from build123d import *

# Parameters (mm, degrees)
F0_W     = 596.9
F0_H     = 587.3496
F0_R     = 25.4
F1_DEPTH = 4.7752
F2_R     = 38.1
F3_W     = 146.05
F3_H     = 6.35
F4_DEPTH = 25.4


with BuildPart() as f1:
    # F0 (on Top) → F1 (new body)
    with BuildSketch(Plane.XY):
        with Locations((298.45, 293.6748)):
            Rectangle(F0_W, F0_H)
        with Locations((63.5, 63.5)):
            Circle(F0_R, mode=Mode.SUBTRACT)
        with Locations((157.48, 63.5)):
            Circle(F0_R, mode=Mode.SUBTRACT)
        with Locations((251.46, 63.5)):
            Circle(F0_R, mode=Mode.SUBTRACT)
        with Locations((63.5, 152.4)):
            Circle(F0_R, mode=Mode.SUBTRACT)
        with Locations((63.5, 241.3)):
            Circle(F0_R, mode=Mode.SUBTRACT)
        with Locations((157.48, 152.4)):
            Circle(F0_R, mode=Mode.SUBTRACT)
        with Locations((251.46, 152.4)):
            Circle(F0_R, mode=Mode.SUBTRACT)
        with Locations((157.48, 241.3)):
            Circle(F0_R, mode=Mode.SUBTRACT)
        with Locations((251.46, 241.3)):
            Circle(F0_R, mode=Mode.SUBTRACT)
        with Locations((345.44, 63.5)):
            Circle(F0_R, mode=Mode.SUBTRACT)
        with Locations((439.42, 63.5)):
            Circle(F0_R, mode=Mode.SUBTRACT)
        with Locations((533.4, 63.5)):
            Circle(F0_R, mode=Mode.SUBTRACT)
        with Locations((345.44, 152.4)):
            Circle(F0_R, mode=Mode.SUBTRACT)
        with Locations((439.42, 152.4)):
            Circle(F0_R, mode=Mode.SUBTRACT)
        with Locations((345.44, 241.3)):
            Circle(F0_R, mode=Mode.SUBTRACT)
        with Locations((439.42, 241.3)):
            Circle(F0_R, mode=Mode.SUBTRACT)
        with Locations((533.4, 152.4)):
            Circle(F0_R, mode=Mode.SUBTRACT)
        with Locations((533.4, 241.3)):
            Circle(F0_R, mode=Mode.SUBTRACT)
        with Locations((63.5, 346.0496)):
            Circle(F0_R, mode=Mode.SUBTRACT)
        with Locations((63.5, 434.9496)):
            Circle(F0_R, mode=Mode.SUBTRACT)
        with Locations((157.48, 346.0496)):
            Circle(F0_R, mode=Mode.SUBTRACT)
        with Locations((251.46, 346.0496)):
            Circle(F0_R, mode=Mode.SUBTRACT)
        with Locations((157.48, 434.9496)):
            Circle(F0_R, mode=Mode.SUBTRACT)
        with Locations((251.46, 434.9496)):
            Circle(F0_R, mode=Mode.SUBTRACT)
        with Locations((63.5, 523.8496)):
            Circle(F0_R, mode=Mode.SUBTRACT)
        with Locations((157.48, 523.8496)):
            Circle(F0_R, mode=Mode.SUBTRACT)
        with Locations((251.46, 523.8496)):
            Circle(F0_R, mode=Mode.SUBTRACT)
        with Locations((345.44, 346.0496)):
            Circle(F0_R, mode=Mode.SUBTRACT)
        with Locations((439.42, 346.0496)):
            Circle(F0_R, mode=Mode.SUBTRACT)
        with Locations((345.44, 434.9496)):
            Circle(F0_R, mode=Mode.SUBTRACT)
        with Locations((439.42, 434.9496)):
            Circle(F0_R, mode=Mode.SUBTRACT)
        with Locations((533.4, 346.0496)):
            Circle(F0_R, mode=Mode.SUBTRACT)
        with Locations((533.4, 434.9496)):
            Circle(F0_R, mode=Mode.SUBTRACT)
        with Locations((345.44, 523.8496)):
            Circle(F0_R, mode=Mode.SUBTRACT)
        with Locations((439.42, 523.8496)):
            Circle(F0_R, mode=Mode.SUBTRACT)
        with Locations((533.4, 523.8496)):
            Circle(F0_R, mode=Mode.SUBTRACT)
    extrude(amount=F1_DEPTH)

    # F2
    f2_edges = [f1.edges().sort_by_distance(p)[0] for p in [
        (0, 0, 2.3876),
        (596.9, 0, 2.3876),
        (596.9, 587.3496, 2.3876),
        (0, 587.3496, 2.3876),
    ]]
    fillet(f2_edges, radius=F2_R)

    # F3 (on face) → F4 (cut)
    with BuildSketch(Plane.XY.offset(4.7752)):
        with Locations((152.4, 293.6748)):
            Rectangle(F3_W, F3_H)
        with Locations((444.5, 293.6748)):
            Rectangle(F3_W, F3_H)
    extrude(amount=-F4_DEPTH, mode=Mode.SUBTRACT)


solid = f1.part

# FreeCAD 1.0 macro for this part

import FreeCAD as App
import Part
import Sketcher

V = App.Vector
Q = App.Units.Quantity


def edges_at(feature, points):
    """Names of the edges that pass closest to the given points."""
    edges = feature.Shape.Edges
    near = lambda p: min(range(len(edges)), key=lambda i: edges[i].distToShape(Part.Vertex(*p))[0])
    return sorted({f"Edge{near(p) + 1}" for p in points})

doc = App.newDocument("Part")
body = doc.addObject("PartDesign::Body", "Body")

# Sketch on XY plane
sketch1 = doc.addObject("Sketcher::SketchObject", "Sketch")
body.addObject(sketch1)
sketch1.AttachmentSupport = (doc.XY_Plane, [""])
sketch1.MapMode = "FlatFace"
sketch1.addGeometry(Part.LineSegment(V(0, 587, 0), V(0, 0, 0)), False)
sketch1.addGeometry(Part.LineSegment(V(0, 0, 0), V(597, 0, 0)), False)
sketch1.addGeometry(Part.LineSegment(V(597, 0, 0), V(597, 587, 0)), False)
sketch1.addGeometry(Part.LineSegment(V(597, 587, 0), V(0, 587, 0)), False)
sketch1.addGeometry(Part.Circle(V(64, 64, 0), V(0, 0, 1), 25), False)
sketch1.addGeometry(Part.Circle(V(157, 64, 0), V(0, 0, 1), 25), False)
sketch1.addGeometry(Part.Circle(V(64, 152, 0), V(0, 0, 1), 25), False)
sketch1.addGeometry(Part.Circle(V(157, 152, 0), V(0, 0, 1), 25), False)
sketch1.addGeometry(Part.Circle(V(251, 64, 0), V(0, 0, 1), 25), False)
sketch1.addGeometry(Part.Circle(V(251, 152, 0), V(0, 0, 1), 25), False)
sketch1.addGeometry(Part.Circle(V(64, 241, 0), V(0, 0, 1), 25), False)
sketch1.addGeometry(Part.Circle(V(157, 241, 0), V(0, 0, 1), 25), False)
sketch1.addGeometry(Part.Circle(V(251, 241, 0), V(0, 0, 1), 25), False)
sketch1.addGeometry(Part.Circle(V(345, 64, 0), V(0, 0, 1), 25), False)
sketch1.addGeometry(Part.Circle(V(345, 152, 0), V(0, 0, 1), 25), False)
sketch1.addGeometry(Part.Circle(V(439, 64, 0), V(0, 0, 1), 25), False)
sketch1.addGeometry(Part.Circle(V(533, 64, 0), V(0, 0, 1), 25), False)
sketch1.addGeometry(Part.Circle(V(439, 152, 0), V(0, 0, 1), 25), False)
sketch1.addGeometry(Part.Circle(V(533, 152, 0), V(0, 0, 1), 25), False)
sketch1.addGeometry(Part.Circle(V(345, 241, 0), V(0, 0, 1), 25), False)
sketch1.addGeometry(Part.Circle(V(439, 241, 0), V(0, 0, 1), 25), False)
sketch1.addGeometry(Part.Circle(V(533, 241, 0), V(0, 0, 1), 25), False)
sketch1.addGeometry(Part.Circle(V(64, 346, 0), V(0, 0, 1), 25), False)
sketch1.addGeometry(Part.Circle(V(157, 346, 0), V(0, 0, 1), 25), False)
sketch1.addGeometry(Part.Circle(V(251, 346, 0), V(0, 0, 1), 25), False)
sketch1.addGeometry(Part.Circle(V(64, 435, 0), V(0, 0, 1), 25), False)
sketch1.addGeometry(Part.Circle(V(157, 435, 0), V(0, 0, 1), 25), False)
sketch1.addGeometry(Part.Circle(V(64, 524, 0), V(0, 0, 1), 25), False)
sketch1.addGeometry(Part.Circle(V(157, 524, 0), V(0, 0, 1), 25), False)
sketch1.addGeometry(Part.Circle(V(251, 435, 0), V(0, 0, 1), 25), False)
sketch1.addGeometry(Part.Circle(V(251, 524, 0), V(0, 0, 1), 25), False)
sketch1.addGeometry(Part.Circle(V(345, 346, 0), V(0, 0, 1), 25), False)
sketch1.addGeometry(Part.Circle(V(439, 346, 0), V(0, 0, 1), 25), False)
sketch1.addGeometry(Part.Circle(V(533, 346, 0), V(0, 0, 1), 25), False)
sketch1.addGeometry(Part.Circle(V(345, 435, 0), V(0, 0, 1), 25), False)
sketch1.addGeometry(Part.Circle(V(345, 524, 0), V(0, 0, 1), 25), False)
sketch1.addGeometry(Part.Circle(V(439, 435, 0), V(0, 0, 1), 25), False)
sketch1.addGeometry(Part.Circle(V(533, 435, 0), V(0, 0, 1), 25), False)
sketch1.addGeometry(Part.Circle(V(439, 524, 0), V(0, 0, 1), 25), False)
sketch1.addGeometry(Part.Circle(V(533, 524, 0), V(0, 0, 1), 25), False)
sketch1.addConstraint(Sketcher.Constraint("Coincident", 0, 2, 1, 1))
sketch1.addConstraint(Sketcher.Constraint("Coincident", 1, 2, 2, 1))
sketch1.addConstraint(Sketcher.Constraint("Coincident", 2, 2, 3, 1))
sketch1.addConstraint(Sketcher.Constraint("Coincident", 3, 2, 0, 1))
sketch1.addConstraint(Sketcher.Constraint("Vertical", 0))
sketch1.addConstraint(Sketcher.Constraint("Horizontal", 1))
sketch1.addConstraint(Sketcher.Constraint("Vertical", 2))
sketch1.addConstraint(Sketcher.Constraint("Horizontal", 3))
sketch1.addConstraint(Sketcher.Constraint("Coincident", 0, 2, -1, 1))
sketch1.addConstraint(Sketcher.Constraint("Equal", 4, 5))
sketch1.addConstraint(Sketcher.Constraint("Equal", 5, 6))
sketch1.addConstraint(Sketcher.Constraint("Equal", 6, 7))
sketch1.addConstraint(Sketcher.Constraint("Equal", 7, 8))
sketch1.addConstraint(Sketcher.Constraint("Equal", 8, 9))
sketch1.addConstraint(Sketcher.Constraint("Equal", 9, 10))
sketch1.addConstraint(Sketcher.Constraint("Equal", 10, 11))
sketch1.addConstraint(Sketcher.Constraint("Equal", 11, 12))
sketch1.addConstraint(Sketcher.Constraint("Equal", 12, 13))
sketch1.addConstraint(Sketcher.Constraint("Equal", 13, 14))
sketch1.addConstraint(Sketcher.Constraint("Equal", 14, 15))
sketch1.addConstraint(Sketcher.Constraint("Equal", 15, 16))
sketch1.addConstraint(Sketcher.Constraint("Equal", 16, 17))
sketch1.addConstraint(Sketcher.Constraint("Equal", 17, 18))
sketch1.addConstraint(Sketcher.Constraint("Equal", 18, 19))
sketch1.addConstraint(Sketcher.Constraint("Equal", 19, 20))
sketch1.addConstraint(Sketcher.Constraint("Equal", 20, 21))
sketch1.addConstraint(Sketcher.Constraint("Equal", 21, 22))
sketch1.addConstraint(Sketcher.Constraint("Equal", 22, 23))
sketch1.addConstraint(Sketcher.Constraint("Equal", 23, 24))
sketch1.addConstraint(Sketcher.Constraint("Equal", 24, 25))
sketch1.addConstraint(Sketcher.Constraint("Equal", 25, 26))
sketch1.addConstraint(Sketcher.Constraint("Equal", 26, 27))
sketch1.addConstraint(Sketcher.Constraint("Equal", 27, 28))
sketch1.addConstraint(Sketcher.Constraint("Equal", 28, 29))
sketch1.addConstraint(Sketcher.Constraint("Equal", 29, 30))
sketch1.addConstraint(Sketcher.Constraint("Equal", 30, 31))
sketch1.addConstraint(Sketcher.Constraint("Equal", 31, 32))
sketch1.addConstraint(Sketcher.Constraint("Equal", 32, 33))
sketch1.addConstraint(Sketcher.Constraint("Equal", 33, 34))
sketch1.addConstraint(Sketcher.Constraint("Equal", 34, 35))
sketch1.addConstraint(Sketcher.Constraint("Equal", 35, 36))
sketch1.addConstraint(Sketcher.Constraint("Equal", 36, 37))
sketch1.addConstraint(Sketcher.Constraint("Equal", 37, 38))
sketch1.addConstraint(Sketcher.Constraint("Equal", 38, 39))
sketch1.addConstraint(Sketcher.Constraint("Horizontal", 4, 3, 5, 3))
sketch1.addConstraint(Sketcher.Constraint("Horizontal", 6, 3, 7, 3))
sketch1.addConstraint(Sketcher.Constraint("Horizontal", 5, 3, 8, 3))
sketch1.addConstraint(Sketcher.Constraint("Horizontal", 7, 3, 9, 3))
sketch1.addConstraint(Sketcher.Constraint("Horizontal", 10, 3, 11, 3))
sketch1.addConstraint(Sketcher.Constraint("Horizontal", 11, 3, 12, 3))
sketch1.addConstraint(Sketcher.Constraint("Horizontal", 8, 3, 13, 3))
sketch1.addConstraint(Sketcher.Constraint("Horizontal", 9, 3, 14, 3))
sketch1.addConstraint(Sketcher.Constraint("Horizontal", 13, 3, 15, 3))
sketch1.addConstraint(Sketcher.Constraint("Horizontal", 15, 3, 16, 3))
sketch1.addConstraint(Sketcher.Constraint("Horizontal", 14, 3, 17, 3))
sketch1.addConstraint(Sketcher.Constraint("Horizontal", 17, 3, 18, 3))
sketch1.addConstraint(Sketcher.Constraint("Horizontal", 12, 3, 19, 3))
sketch1.addConstraint(Sketcher.Constraint("Horizontal", 19, 3, 20, 3))
sketch1.addConstraint(Sketcher.Constraint("Horizontal", 20, 3, 21, 3))
sketch1.addConstraint(Sketcher.Constraint("Horizontal", 22, 3, 23, 3))
sketch1.addConstraint(Sketcher.Constraint("Horizontal", 23, 3, 24, 3))
sketch1.addConstraint(Sketcher.Constraint("Horizontal", 25, 3, 26, 3))
sketch1.addConstraint(Sketcher.Constraint("Horizontal", 27, 3, 28, 3))
sketch1.addConstraint(Sketcher.Constraint("Horizontal", 26, 3, 29, 3))
sketch1.addConstraint(Sketcher.Constraint("Horizontal", 28, 3, 30, 3))
sketch1.addConstraint(Sketcher.Constraint("Horizontal", 24, 3, 31, 3))
sketch1.addConstraint(Sketcher.Constraint("Horizontal", 31, 3, 32, 3))
sketch1.addConstraint(Sketcher.Constraint("Horizontal", 32, 3, 33, 3))
sketch1.addConstraint(Sketcher.Constraint("Horizontal", 29, 3, 34, 3))
sketch1.addConstraint(Sketcher.Constraint("Horizontal", 30, 3, 35, 3))
sketch1.addConstraint(Sketcher.Constraint("Horizontal", 34, 3, 36, 3))
sketch1.addConstraint(Sketcher.Constraint("Horizontal", 36, 3, 37, 3))
sketch1.addConstraint(Sketcher.Constraint("Horizontal", 35, 3, 38, 3))
sketch1.addConstraint(Sketcher.Constraint("Horizontal", 38, 3, 39, 3))
sketch1.addConstraint(Sketcher.Constraint("Vertical", 4, 3, 6, 3))
sketch1.addConstraint(Sketcher.Constraint("Vertical", 5, 3, 7, 3))
sketch1.addConstraint(Sketcher.Constraint("Vertical", 8, 3, 9, 3))
sketch1.addConstraint(Sketcher.Constraint("Vertical", 6, 3, 10, 3))
sketch1.addConstraint(Sketcher.Constraint("Vertical", 7, 3, 11, 3))
sketch1.addConstraint(Sketcher.Constraint("Vertical", 9, 3, 12, 3))
sketch1.addConstraint(Sketcher.Constraint("Vertical", 13, 3, 14, 3))
sketch1.addConstraint(Sketcher.Constraint("Vertical", 15, 3, 17, 3))
sketch1.addConstraint(Sketcher.Constraint("Vertical", 16, 3, 18, 3))
sketch1.addConstraint(Sketcher.Constraint("Vertical", 14, 3, 19, 3))
sketch1.addConstraint(Sketcher.Constraint("Vertical", 17, 3, 20, 3))
sketch1.addConstraint(Sketcher.Constraint("Vertical", 18, 3, 21, 3))
sketch1.addConstraint(Sketcher.Constraint("Vertical", 10, 3, 22, 3))
sketch1.addConstraint(Sketcher.Constraint("Vertical", 11, 3, 23, 3))
sketch1.addConstraint(Sketcher.Constraint("Vertical", 12, 3, 24, 3))
sketch1.addConstraint(Sketcher.Constraint("Vertical", 22, 3, 25, 3))
sketch1.addConstraint(Sketcher.Constraint("Vertical", 23, 3, 26, 3))
sketch1.addConstraint(Sketcher.Constraint("Vertical", 25, 3, 27, 3))
sketch1.addConstraint(Sketcher.Constraint("Vertical", 26, 3, 28, 3))
sketch1.addConstraint(Sketcher.Constraint("Vertical", 24, 3, 29, 3))
sketch1.addConstraint(Sketcher.Constraint("Vertical", 29, 3, 30, 3))
sketch1.addConstraint(Sketcher.Constraint("Vertical", 19, 3, 31, 3))
sketch1.addConstraint(Sketcher.Constraint("Vertical", 20, 3, 32, 3))
sketch1.addConstraint(Sketcher.Constraint("Vertical", 21, 3, 33, 3))
sketch1.addConstraint(Sketcher.Constraint("Vertical", 31, 3, 34, 3))
sketch1.addConstraint(Sketcher.Constraint("Vertical", 34, 3, 35, 3))
sketch1.addConstraint(Sketcher.Constraint("Vertical", 32, 3, 36, 3))
sketch1.addConstraint(Sketcher.Constraint("Vertical", 33, 3, 37, 3))
sketch1.addConstraint(Sketcher.Constraint("Vertical", 36, 3, 38, 3))
sketch1.addConstraint(Sketcher.Constraint("Vertical", 37, 3, 39, 3))
sketch1.addConstraint(Sketcher.Constraint("Diameter", 4, Q("2 in")))
sketch1.addConstraint(Sketcher.Constraint("DistanceX", 1, 1, 1, 2, Q("23.5 in")))
sketch1.addConstraint(Sketcher.Constraint("DistanceY", -1, 1, 6, 3, Q("6 in")))
sketch1.addConstraint(Sketcher.Constraint("DistanceX", -1, 1, 16, 3, Q("21 in")))
sketch1.addConstraint(Sketcher.Constraint("DistanceY", 4, 3, 10, 3, Q("7 in")))
sketch1.addConstraint(Sketcher.Constraint("DistanceY", 22, 3, 27, 3, Q("7 in")))
sketch1.addConstraint(Sketcher.Constraint("DistanceY", 37, 3, 2, 2, Q("6 in")))
sketch1.addConstraint(Sketcher.Constraint("DistanceX", -1, 1, 4, 3, Q("2.5 in")))
sketch1.addConstraint(Sketcher.Constraint("DistanceY", -1, 1, 4, 3, Q("2.5 in")))
sketch1.addConstraint(Sketcher.Constraint("DistanceX", -1, 1, 5, 3, Q("6.2 in")))
sketch1.addConstraint(Sketcher.Constraint("DistanceX", -1, 1, 8, 3, Q("9.9 in")))
sketch1.addConstraint(Sketcher.Constraint("DistanceX", -1, 1, 13, 3, Q("13.6 in")))
sketch1.addConstraint(Sketcher.Constraint("DistanceX", -1, 1, 15, 3, Q("17.3 in")))
sketch1.addConstraint(Sketcher.Constraint("DistanceY", 22, 3, 25, 3, Q("3.5 in")))
sketch1.addConstraint(Sketcher.Constraint("DistanceY", 0, 2, 0, 1, Q("23.124 in")))
pad1 = doc.addObject("PartDesign::Pad", "Pad")
body.addObject(pad1)
pad1.Profile = sketch1
pad1.Length = Q("0.188 in")
doc.recompute()

fillet = doc.addObject("PartDesign::Fillet", "Fillet")
body.addObject(fillet)
fillet.Base = (pad1, edges_at(pad1, [
    (0, 0, 2.388),
    (596.9, 0, 2.388),
    (596.9, 587.35, 2.388),
    (0, 587.35, 2.388),
]))
fillet.Radius = Q("1.5 in")

# Sketch on XY plane
sketch2 = doc.addObject("Sketcher::SketchObject", "Sketch001")
body.addObject(sketch2)
sketch2.AttachmentSupport = (doc.XY_Plane, [""])
sketch2.MapMode = "FlatFace"
sketch2.AttachmentOffset = App.Placement(V(0, 0, 0.188 * 25.4), App.Rotation())
sketch2.addGeometry(Part.LineSegment(V(79, 297, 0), V(79, 290, 0)), False)
sketch2.addGeometry(Part.LineSegment(V(79, 290, 0), V(225, 290, 0)), False)
sketch2.addGeometry(Part.LineSegment(V(225, 290, 0), V(225, 297, 0)), False)
sketch2.addGeometry(Part.LineSegment(V(225, 297, 0), V(79, 297, 0)), False)
sketch2.addGeometry(Part.LineSegment(V(371, 297, 0), V(371, 290, 0)), False)
sketch2.addGeometry(Part.LineSegment(V(371, 290, 0), V(518, 290, 0)), False)
sketch2.addGeometry(Part.LineSegment(V(518, 290, 0), V(518, 297, 0)), False)
sketch2.addGeometry(Part.LineSegment(V(518, 297, 0), V(371, 297, 0)), False)
sketch2.addConstraint(Sketcher.Constraint("Coincident", 0, 2, 1, 1))
sketch2.addConstraint(Sketcher.Constraint("Coincident", 1, 2, 2, 1))
sketch2.addConstraint(Sketcher.Constraint("Coincident", 2, 2, 3, 1))
sketch2.addConstraint(Sketcher.Constraint("Coincident", 3, 2, 0, 1))
sketch2.addConstraint(Sketcher.Constraint("Coincident", 4, 2, 5, 1))
sketch2.addConstraint(Sketcher.Constraint("Coincident", 5, 2, 6, 1))
sketch2.addConstraint(Sketcher.Constraint("Coincident", 6, 2, 7, 1))
sketch2.addConstraint(Sketcher.Constraint("Coincident", 7, 2, 4, 1))
sketch2.addConstraint(Sketcher.Constraint("Vertical", 0))
sketch2.addConstraint(Sketcher.Constraint("Horizontal", 1))
sketch2.addConstraint(Sketcher.Constraint("Vertical", 2))
sketch2.addConstraint(Sketcher.Constraint("Horizontal", 3))
sketch2.addConstraint(Sketcher.Constraint("Vertical", 4))
sketch2.addConstraint(Sketcher.Constraint("Horizontal", 5))
sketch2.addConstraint(Sketcher.Constraint("Vertical", 6))
sketch2.addConstraint(Sketcher.Constraint("Horizontal", 7))
sketch2.addConstraint(Sketcher.Constraint("Horizontal", 1, 2, 4, 2))
sketch2.addConstraint(Sketcher.Constraint("Horizontal", 3, 2, 6, 2))
sketch2.addConstraint(Sketcher.Constraint("Equal", 3, 5))
sketch2.addConstraint(Sketcher.Constraint("DistanceX", 1, 1, 1, 2, Q("5.75 in")))
sketch2.addConstraint(Sketcher.Constraint("DistanceY", 0, 2, 0, 1, Q("0.25 in")))
sketch2.addConstraint(Sketcher.Constraint("DistanceX", 0, 2, 4, 2, Q("11.5 in")))
sketch2.addConstraint(Sketcher.Constraint("DistanceX", -1, 1, 0, 2, Q("3.125 in")))
sketch2.addConstraint(Sketcher.Constraint("DistanceY", -1, 1, 0, 2, Q("11.437 in")))
pocket1 = doc.addObject("PartDesign::Pocket", "Pocket")
body.addObject(pocket1)
pocket1.Profile = sketch2
pocket1.Length = Q("1 in")

doc.recompute()
